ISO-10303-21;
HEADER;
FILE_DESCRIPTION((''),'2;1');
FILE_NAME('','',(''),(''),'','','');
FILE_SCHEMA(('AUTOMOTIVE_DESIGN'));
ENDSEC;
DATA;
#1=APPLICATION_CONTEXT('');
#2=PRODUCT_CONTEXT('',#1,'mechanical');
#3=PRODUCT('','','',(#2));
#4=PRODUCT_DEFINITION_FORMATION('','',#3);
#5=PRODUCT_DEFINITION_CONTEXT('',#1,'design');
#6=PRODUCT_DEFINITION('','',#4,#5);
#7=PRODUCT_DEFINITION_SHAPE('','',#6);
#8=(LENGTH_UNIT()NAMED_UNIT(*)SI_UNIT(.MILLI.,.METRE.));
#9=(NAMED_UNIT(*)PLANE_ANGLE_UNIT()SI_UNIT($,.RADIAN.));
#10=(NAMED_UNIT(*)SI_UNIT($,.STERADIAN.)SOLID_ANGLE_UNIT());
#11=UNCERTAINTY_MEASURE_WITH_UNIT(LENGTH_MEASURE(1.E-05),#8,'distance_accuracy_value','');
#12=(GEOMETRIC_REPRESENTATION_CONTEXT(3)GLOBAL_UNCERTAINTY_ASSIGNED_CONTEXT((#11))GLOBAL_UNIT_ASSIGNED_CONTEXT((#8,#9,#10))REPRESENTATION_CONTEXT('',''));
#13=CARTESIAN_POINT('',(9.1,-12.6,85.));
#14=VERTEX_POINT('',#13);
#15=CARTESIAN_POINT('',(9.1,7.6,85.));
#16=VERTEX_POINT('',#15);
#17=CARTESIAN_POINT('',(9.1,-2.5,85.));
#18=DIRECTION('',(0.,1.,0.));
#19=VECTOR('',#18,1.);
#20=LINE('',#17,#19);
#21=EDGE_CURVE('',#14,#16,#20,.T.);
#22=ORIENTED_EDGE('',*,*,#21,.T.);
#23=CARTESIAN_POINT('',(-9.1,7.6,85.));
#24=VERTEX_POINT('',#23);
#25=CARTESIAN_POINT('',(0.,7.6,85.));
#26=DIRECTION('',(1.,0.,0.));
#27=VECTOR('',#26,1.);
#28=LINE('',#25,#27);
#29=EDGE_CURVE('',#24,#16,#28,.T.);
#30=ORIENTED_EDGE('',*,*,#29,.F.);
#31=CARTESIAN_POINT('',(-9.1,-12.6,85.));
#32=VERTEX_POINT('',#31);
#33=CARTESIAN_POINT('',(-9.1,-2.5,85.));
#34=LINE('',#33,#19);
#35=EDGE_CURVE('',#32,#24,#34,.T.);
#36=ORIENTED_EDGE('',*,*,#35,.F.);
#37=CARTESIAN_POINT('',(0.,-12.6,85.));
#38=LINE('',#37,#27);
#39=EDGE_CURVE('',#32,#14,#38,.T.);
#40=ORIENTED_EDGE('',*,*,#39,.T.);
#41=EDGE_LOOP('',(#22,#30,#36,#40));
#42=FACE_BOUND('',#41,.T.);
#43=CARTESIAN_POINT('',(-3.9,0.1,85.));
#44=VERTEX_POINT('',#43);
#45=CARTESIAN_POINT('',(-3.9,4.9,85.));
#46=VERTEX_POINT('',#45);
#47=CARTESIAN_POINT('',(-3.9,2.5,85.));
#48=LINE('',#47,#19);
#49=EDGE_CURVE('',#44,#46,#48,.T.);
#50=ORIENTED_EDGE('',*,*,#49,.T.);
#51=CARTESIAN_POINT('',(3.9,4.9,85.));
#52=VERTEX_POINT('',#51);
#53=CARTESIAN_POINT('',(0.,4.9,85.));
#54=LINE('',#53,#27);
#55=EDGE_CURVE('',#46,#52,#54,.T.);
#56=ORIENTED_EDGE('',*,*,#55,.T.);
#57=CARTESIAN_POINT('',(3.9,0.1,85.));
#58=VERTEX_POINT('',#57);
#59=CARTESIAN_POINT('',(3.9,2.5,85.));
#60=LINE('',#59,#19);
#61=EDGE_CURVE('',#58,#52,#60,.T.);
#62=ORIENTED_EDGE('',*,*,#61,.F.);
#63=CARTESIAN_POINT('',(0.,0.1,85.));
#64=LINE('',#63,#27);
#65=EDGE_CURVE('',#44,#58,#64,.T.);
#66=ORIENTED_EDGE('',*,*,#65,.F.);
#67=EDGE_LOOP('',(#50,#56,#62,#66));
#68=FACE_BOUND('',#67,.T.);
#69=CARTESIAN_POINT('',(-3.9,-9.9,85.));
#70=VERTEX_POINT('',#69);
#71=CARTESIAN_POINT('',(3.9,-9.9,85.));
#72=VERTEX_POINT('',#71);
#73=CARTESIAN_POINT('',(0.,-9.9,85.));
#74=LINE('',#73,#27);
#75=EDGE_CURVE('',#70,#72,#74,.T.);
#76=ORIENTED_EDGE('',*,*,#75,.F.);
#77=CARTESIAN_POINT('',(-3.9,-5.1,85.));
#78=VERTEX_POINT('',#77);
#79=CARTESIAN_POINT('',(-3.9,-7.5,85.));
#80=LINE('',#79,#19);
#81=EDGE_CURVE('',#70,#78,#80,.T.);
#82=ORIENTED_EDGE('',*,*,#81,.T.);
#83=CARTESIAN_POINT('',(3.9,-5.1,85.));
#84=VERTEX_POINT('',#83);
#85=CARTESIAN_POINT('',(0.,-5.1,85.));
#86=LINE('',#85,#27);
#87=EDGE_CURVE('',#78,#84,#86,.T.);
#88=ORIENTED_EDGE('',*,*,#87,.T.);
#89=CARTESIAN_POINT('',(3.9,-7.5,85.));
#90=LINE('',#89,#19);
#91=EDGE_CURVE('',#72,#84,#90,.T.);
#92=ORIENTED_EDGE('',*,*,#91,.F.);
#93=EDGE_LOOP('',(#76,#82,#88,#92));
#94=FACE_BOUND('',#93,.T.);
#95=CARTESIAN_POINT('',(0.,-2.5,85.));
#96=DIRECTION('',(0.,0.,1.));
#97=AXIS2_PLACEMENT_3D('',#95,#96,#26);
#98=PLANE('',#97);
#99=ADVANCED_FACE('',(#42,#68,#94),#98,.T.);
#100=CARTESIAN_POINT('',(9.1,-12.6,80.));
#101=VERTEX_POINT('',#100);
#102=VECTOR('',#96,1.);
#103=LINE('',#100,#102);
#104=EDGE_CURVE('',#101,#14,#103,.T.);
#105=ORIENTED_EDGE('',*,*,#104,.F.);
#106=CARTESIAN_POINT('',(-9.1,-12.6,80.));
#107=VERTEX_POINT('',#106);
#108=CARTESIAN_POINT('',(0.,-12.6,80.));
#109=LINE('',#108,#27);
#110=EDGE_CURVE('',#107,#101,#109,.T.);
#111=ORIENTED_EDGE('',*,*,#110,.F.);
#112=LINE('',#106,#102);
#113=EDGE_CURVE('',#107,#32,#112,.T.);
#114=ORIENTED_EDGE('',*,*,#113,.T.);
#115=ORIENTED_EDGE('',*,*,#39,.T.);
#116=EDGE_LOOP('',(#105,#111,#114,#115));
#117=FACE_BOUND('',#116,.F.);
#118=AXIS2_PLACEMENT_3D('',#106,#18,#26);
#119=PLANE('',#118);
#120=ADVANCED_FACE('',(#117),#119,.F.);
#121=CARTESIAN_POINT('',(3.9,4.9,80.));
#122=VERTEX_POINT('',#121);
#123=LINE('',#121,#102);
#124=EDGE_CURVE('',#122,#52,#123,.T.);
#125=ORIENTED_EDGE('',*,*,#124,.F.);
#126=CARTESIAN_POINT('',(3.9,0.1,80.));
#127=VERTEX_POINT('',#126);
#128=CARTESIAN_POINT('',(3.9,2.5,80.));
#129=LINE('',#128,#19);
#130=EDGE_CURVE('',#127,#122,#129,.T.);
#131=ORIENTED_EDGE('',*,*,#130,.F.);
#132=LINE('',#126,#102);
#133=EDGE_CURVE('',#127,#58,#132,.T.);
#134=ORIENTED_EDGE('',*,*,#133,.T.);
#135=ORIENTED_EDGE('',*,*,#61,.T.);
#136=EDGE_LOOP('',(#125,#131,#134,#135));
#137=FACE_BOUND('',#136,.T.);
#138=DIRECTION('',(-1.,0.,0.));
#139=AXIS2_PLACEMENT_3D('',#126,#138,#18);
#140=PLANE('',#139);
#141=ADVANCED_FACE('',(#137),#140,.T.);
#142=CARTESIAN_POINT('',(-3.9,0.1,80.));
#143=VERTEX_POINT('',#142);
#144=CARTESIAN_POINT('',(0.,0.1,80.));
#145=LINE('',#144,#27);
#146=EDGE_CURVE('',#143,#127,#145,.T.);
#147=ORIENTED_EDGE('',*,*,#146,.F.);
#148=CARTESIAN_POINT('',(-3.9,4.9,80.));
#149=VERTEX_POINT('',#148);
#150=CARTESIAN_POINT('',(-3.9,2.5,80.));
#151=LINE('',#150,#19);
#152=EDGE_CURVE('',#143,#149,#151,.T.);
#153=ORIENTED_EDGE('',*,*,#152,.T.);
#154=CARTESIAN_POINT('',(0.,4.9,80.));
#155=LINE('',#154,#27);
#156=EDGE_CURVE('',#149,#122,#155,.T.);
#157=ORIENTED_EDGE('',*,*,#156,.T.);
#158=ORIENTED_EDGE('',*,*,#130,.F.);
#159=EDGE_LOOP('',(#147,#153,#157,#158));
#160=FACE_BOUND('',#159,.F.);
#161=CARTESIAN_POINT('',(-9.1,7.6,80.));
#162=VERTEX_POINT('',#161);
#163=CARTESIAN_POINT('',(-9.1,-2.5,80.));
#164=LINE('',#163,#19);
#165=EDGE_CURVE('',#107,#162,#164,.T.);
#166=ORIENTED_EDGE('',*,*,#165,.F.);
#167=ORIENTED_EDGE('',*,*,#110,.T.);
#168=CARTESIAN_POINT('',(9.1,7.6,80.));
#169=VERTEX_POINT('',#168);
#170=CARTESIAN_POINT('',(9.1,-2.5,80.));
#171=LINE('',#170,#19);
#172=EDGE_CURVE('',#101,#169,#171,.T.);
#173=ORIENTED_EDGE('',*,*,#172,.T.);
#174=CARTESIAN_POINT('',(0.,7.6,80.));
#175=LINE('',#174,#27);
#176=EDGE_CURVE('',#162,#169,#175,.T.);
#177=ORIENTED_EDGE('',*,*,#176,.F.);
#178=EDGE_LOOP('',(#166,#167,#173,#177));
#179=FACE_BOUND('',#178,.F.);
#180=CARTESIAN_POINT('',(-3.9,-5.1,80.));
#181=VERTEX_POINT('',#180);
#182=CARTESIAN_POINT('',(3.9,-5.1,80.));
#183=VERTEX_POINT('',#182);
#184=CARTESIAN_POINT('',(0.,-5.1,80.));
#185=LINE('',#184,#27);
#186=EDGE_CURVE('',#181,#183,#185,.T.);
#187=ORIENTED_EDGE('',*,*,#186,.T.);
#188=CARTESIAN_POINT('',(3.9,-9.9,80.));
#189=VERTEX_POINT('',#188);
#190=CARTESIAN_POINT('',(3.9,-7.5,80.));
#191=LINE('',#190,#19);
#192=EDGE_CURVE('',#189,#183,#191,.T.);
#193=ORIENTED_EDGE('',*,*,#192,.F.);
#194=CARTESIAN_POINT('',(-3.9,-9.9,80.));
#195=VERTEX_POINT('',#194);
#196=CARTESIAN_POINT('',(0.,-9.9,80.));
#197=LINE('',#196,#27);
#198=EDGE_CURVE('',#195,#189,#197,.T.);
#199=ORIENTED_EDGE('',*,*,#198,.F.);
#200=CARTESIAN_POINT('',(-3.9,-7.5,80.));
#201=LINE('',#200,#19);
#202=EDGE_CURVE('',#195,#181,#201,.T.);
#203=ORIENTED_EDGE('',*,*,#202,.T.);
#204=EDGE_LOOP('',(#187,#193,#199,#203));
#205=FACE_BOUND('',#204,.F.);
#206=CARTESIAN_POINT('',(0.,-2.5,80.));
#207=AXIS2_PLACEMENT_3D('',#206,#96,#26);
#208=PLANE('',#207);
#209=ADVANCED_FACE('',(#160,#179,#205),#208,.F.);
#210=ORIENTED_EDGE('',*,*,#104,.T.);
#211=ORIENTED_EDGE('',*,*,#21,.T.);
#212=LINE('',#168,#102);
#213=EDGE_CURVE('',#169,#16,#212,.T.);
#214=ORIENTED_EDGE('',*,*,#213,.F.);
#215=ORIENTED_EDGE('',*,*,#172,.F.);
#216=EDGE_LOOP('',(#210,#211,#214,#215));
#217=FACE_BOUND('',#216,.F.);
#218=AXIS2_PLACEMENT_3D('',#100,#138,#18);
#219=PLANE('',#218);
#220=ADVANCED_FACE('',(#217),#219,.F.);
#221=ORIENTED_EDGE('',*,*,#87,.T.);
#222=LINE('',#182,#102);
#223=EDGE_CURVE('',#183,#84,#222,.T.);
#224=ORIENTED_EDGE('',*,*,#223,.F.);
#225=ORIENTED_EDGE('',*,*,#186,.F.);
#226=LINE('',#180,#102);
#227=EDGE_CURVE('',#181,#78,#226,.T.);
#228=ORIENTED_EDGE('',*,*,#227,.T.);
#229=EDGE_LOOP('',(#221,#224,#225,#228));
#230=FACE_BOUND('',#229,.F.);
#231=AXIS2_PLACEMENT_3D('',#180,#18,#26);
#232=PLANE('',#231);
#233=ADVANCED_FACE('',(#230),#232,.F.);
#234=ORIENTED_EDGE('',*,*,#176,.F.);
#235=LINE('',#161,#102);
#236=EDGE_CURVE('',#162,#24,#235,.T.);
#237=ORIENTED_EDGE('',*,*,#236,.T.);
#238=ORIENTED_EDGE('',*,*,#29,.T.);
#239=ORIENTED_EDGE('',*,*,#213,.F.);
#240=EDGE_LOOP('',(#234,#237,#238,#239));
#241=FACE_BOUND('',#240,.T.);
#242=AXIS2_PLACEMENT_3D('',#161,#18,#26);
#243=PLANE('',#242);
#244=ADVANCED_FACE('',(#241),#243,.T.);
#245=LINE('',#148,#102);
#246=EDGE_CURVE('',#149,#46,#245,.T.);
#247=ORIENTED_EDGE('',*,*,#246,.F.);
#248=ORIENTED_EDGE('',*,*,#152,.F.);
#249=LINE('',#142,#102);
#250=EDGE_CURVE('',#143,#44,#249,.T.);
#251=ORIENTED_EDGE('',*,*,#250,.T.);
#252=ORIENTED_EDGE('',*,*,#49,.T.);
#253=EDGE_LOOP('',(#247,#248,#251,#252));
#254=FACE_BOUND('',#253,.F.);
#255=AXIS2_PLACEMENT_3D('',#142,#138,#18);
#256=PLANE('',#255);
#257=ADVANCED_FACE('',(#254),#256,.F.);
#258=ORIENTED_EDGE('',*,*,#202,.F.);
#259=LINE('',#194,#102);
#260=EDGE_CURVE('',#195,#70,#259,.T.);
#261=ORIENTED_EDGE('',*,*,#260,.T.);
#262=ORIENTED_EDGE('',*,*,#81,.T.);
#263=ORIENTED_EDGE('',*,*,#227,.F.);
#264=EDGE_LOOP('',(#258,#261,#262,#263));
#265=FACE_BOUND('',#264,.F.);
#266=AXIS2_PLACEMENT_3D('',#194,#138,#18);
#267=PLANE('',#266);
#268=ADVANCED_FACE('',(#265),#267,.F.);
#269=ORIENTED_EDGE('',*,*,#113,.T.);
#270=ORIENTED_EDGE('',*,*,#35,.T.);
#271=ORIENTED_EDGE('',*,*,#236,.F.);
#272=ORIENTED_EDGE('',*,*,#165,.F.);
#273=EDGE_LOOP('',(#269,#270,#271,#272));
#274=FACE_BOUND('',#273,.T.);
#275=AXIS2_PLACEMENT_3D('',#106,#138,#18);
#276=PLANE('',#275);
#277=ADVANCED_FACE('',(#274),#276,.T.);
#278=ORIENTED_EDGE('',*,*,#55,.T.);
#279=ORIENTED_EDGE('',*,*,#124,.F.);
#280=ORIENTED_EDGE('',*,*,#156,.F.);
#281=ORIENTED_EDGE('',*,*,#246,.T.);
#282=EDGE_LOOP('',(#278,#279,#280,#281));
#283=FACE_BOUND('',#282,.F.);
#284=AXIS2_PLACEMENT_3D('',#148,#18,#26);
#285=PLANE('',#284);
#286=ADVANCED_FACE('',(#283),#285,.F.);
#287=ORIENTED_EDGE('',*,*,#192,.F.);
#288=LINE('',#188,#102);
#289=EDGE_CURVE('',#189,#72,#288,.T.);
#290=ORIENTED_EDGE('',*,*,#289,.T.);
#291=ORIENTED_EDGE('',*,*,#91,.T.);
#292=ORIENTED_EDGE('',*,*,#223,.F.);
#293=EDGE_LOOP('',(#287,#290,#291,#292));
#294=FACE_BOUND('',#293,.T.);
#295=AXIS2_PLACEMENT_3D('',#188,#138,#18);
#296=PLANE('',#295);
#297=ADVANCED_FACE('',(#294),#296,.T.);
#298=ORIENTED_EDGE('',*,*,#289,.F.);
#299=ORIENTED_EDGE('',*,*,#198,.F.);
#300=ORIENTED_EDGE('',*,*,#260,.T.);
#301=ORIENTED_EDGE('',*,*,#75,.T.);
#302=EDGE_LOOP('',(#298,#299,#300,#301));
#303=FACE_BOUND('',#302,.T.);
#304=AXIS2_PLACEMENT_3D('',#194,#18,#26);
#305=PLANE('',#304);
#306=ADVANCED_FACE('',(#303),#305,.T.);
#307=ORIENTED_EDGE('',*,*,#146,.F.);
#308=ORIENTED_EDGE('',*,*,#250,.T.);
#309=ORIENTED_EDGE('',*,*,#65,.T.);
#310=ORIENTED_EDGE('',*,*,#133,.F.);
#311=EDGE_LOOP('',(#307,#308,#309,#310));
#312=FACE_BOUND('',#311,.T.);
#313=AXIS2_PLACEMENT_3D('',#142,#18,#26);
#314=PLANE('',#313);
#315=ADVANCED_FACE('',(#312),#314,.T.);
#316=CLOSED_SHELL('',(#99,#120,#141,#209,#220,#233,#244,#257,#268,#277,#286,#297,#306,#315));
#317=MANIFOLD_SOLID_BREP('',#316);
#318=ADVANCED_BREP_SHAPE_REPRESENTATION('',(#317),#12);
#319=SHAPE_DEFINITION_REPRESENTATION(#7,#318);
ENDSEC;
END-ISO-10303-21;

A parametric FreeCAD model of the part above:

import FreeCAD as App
import Part
import Sketcher
from FreeCAD import Vector
Q = App.Units.Quantity

doc = App.newDocument("Part")
body = doc.addObject("PartDesign::Body", "Body")

# Sketch on XY plane
sketch1 = doc.addObject("Sketcher::SketchObject", "Sketch")
body.addObject(sketch1)
sketch1.AttachmentSupport = (doc.XY_Plane, [""])
sketch1.MapMode = "FlatFace"
sketch1.AttachmentOffset = App.Placement(Vector(0, 0, 80), App.Rotation())
sketch1.addGeometry([
    Part.LineSegment(Vector(-9.1, 7.6, 0), Vector(-9.1, -12.6, 0)),  # 0
    Part.LineSegment(Vector(-9.1, -12.6, 0), Vector(9.1, -12.6, 0)),  # 1
    Part.LineSegment(Vector(9.1, -12.6, 0), Vector(9.1, 7.6, 0)),  # 2
    Part.LineSegment(Vector(9.1, 7.6, 0), Vector(-9.1, 7.6, 0)),  # 3
    Part.LineSegment(Vector(3.9, -9.9, 0), Vector(-3.9, -9.9, 0)),  # 4
    Part.LineSegment(Vector(-3.9, -9.9, 0), Vector(-3.9, -5.1, 0)),  # 5
    Part.LineSegment(Vector(-3.9, -5.1, 0), Vector(3.9, -5.1, 0)),  # 6
    Part.LineSegment(Vector(3.9, -5.1, 0), Vector(3.9, -9.9, 0)),  # 7
    Part.LineSegment(Vector(3.9, 0.1, 0), Vector(-3.9, 0.1, 0)),  # 8
    Part.LineSegment(Vector(-3.9, 0.1, 0), Vector(-3.9, 4.9, 0)),  # 9
    Part.LineSegment(Vector(-3.9, 4.9, 0), Vector(3.9, 4.9, 0)),  # 10
    Part.LineSegment(Vector(3.9, 4.9, 0), Vector(3.9, 0.1, 0)),  # 11
], False)
sketch1.addConstraint([
    Sketcher.Constraint("Coincident", 0, 2, 1, 1),
    Sketcher.Constraint("Coincident", 1, 2, 2, 1),
    Sketcher.Constraint("Coincident", 2, 2, 3, 1),
    Sketcher.Constraint("Coincident", 3, 2, 0, 1),
    Sketcher.Constraint("Coincident", 4, 2, 5, 1),
    Sketcher.Constraint("Coincident", 5, 2, 6, 1),
    Sketcher.Constraint("Coincident", 6, 2, 7, 1),
    Sketcher.Constraint("Coincident", 7, 2, 4, 1),
    Sketcher.Constraint("Coincident", 8, 2, 9, 1),
    Sketcher.Constraint("Coincident", 9, 2, 10, 1),
    Sketcher.Constraint("Coincident", 10, 2, 11, 1),
    Sketcher.Constraint("Coincident", 11, 2, 8, 1),
    Sketcher.Constraint("Vertical", 0),
    Sketcher.Constraint("Horizontal", 1),
    Sketcher.Constraint("Vertical", 2),
    Sketcher.Constraint("Horizontal", 3),
    Sketcher.Constraint("Horizontal", 4),
    Sketcher.Constraint("Vertical", 5),
    Sketcher.Constraint("Horizontal", 6),
    Sketcher.Constraint("Vertical", 7),
    Sketcher.Constraint("Horizontal", 8),
    Sketcher.Constraint("Vertical", 9),
    Sketcher.Constraint("Horizontal", 10),
    Sketcher.Constraint("Vertical", 11),
    Sketcher.Constraint("Vertical", 5, 2, 8, 2),
    Sketcher.Constraint("Vertical", 7, 2, 10, 2),
    Sketcher.Constraint("Equal", 7, 9),
    Sketcher.Constraint("DistanceX", 1, 1, 1, 2, Q("18.2 mm")),
    Sketcher.Constraint("DistanceX", 4, 2, 4, 1, Q("7.8 mm")),
    Sketcher.Constraint("DistanceY", 0, 2, 0, 1, Q("20.2 mm")),
    Sketcher.Constraint("DistanceY", 5, 1, 5, 2, Q("4.8 mm")),
    Sketcher.Constraint("DistanceX", 4, 2, 1, 2, Q("13 mm")),
    Sketcher.Constraint("DistanceY", 4, 2, 8, 2, Q("10 mm")),
    Sketcher.Constraint("DistanceX", 0, 2, -1, 1, Q("9.1 mm")),
    Sketcher.Constraint("DistanceY", 0, 2, -1, 1, Q("12.6 mm")),
    Sketcher.Constraint("DistanceY", 4, 2, -1, 1, Q("9.9 mm")),
])
pad1 = doc.addObject("PartDesign::Pad", "Pad")
body.addObject(pad1)
pad1.Profile = sketch1
pad1.Length = 5

doc.recompute()
